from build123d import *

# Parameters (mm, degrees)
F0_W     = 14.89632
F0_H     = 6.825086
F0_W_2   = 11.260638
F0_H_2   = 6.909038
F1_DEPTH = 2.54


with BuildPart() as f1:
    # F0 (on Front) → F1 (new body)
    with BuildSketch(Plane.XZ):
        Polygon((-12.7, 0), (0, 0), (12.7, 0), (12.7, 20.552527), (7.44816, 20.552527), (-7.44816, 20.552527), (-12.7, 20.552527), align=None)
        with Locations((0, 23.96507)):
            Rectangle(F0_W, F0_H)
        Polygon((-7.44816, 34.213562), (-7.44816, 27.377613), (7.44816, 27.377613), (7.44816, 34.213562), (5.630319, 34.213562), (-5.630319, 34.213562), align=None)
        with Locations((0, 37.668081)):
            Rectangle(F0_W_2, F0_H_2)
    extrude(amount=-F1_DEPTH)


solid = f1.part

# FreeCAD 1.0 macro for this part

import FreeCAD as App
import Part
import Sketcher
Q = App.Units.Quantity


def add_polygon(sketch, points):
    """Adds a closed chain of lines whose ends are joined by coincident constraints."""
    first, n = sketch.GeometryCount, len(points)
    for a, b in zip(points, points[1:] + points[:1]):
        sketch.addGeometry(Part.LineSegment(App.Vector(*a, 0), App.Vector(*b, 0)), False)
    for i in range(n):
        sketch.addConstraint(Sketcher.Constraint("Coincident", first + i, 2, first + (i + 1) % n, 1))

doc = App.newDocument("Part")
body = doc.addObject("PartDesign::Body", "Body")

# Sketch on XZ plane
sketch1 = body.newObject("Sketcher::SketchObject", "Sketch")
sketch1.AttachmentSupport = (doc.getObject("XZ_Plane"), [""])
sketch1.MapMode = "FlatFace"
add_polygon(sketch1, [(-12.7, 0), (12.7, 0), (12.7, 20.552527), (7.44816, 20.552527), (7.44816, 34.213562), (5.630319, 34.213562), (5.630319, 41.1226), (-5.630319, 41.1226), (-5.630319, 34.213562), (-7.44816, 34.213562), (-7.44816, 20.552527), (-12.7, 20.552527)])  # lines 0-11
sketch1.addConstraint([
    Sketcher.Constraint("Horizontal", 0),
    Sketcher.Constraint("Vertical", 1),
    Sketcher.Constraint("Horizontal", 2),
    Sketcher.Constraint("Vertical", 3),
    Sketcher.Constraint("Horizontal", 4),
    Sketcher.Constraint("Vertical", 5),
    Sketcher.Constraint("Horizontal", 6),
    Sketcher.Constraint("Vertical", 7),
    Sketcher.Constraint("Horizontal", 8),
    Sketcher.Constraint("Vertical", 9),
    Sketcher.Constraint("Horizontal", 10),
    Sketcher.Constraint("Vertical", 11),
    Sketcher.Constraint("Symmetric", 0, 2, 11, 2, -1, 1),
    Sketcher.Constraint("Symmetric", 4, 2, 7, 2, -2),
    Sketcher.Constraint("Symmetric", 2, 2, 9, 2, -2),
    Sketcher.Constraint("DistanceX", 0, 1, 0, 2, Q("1 in")),
    Sketcher.Constraint("DistanceY", -1, 1, 5, 2, Q("1.619 in")),
    Sketcher.Constraint("DistanceX", 2, 2, 2, 1, 5.25184),
    Sketcher.Constraint("DistanceX", 4, 2, 4, 1, 1.817841),
    Sketcher.Constraint("DistanceY", 1, 1, 1, 2, 20.552527),
    Sketcher.Constraint("DistanceY", 3, 1, 3, 2, 13.661035),
])
pad1 = body.newObject("PartDesign::Pad", "Pad")
pad1.Profile = sketch1
pad1.Length = Q("0.1 in")
pad1.Reversed = True

doc.recompute()
